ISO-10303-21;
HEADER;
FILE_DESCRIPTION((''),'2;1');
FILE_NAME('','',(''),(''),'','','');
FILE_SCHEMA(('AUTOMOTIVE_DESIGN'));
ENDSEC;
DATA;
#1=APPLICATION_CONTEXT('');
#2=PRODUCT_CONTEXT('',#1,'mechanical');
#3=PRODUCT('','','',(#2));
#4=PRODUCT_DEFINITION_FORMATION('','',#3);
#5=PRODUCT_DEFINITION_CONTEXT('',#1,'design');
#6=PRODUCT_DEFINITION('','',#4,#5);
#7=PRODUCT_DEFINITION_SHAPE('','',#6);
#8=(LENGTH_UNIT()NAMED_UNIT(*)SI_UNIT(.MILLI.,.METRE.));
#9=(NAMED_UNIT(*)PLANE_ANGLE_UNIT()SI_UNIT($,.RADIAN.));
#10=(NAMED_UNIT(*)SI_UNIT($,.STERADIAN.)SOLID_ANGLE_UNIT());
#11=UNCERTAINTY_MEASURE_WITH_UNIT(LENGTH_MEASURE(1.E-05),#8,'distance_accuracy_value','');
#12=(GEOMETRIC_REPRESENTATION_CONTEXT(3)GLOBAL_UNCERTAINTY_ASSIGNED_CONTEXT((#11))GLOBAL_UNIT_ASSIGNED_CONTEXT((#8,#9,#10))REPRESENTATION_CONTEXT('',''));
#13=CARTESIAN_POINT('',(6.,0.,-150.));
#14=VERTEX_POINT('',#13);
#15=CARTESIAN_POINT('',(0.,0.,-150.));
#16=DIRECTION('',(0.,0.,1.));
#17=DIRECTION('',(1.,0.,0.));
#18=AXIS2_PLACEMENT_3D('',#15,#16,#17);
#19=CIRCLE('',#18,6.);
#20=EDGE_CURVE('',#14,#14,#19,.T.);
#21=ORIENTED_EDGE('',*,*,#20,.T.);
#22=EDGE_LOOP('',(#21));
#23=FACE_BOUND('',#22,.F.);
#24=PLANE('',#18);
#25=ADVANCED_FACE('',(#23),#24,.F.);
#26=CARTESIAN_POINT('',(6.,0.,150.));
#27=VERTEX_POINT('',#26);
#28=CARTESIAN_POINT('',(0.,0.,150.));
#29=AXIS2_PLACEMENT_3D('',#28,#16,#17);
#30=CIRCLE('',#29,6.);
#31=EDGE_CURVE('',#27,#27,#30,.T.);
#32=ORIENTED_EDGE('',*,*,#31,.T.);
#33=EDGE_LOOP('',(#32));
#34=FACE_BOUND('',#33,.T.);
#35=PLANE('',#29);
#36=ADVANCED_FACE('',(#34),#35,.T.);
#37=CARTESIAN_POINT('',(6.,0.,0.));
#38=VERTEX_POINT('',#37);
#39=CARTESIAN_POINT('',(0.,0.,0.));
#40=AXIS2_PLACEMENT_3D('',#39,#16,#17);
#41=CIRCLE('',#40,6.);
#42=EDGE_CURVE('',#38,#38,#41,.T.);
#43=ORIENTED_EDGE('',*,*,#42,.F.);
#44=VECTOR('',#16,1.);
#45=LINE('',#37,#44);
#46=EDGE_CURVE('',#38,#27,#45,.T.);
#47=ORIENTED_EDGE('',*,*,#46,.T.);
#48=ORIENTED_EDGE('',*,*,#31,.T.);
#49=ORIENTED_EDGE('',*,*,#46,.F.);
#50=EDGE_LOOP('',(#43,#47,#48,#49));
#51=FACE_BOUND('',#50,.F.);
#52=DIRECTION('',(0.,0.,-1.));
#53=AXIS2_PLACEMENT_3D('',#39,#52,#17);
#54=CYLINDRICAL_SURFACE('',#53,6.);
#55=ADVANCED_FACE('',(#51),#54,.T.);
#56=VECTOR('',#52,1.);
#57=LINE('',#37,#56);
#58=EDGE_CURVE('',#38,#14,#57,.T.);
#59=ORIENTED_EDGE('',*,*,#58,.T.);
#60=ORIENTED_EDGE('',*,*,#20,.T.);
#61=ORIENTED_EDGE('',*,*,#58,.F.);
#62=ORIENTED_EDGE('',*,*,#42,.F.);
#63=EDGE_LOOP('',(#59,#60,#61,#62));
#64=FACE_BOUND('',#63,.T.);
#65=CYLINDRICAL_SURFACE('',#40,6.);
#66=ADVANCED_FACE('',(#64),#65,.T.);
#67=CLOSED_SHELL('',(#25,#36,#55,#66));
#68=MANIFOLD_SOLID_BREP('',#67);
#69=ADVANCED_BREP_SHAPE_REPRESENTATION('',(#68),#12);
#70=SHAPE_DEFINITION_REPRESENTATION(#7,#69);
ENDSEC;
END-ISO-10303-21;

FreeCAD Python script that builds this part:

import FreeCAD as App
import Part
import Sketcher
from FreeCAD import Vector

doc = App.newDocument("Part")
params = doc.addObject("Spreadsheet::Sheet", "Params")
for row, (alias, value) in enumerate([
    ("sketch1_diameter", "12 mm"),
    ("pad1_length", "300 mm"),
], start=1):
    params.set(f"A{row}", alias)
    params.set(f"B{row}", "=" + value)
    params.setAlias(f"B{row}", alias)

body = doc.addObject("PartDesign::Body", "Body")

# Sketch on XY plane
sketch1 = body.newObject("Sketcher::SketchObject", "Sketch")
sketch1.AttachmentSupport = (doc.getObject("XY_Plane"), [""])
sketch1.MapMode = "FlatFace"
sketch1.addGeometry(Part.Circle(Vector(0, 0, 0), Vector(0, 0, 1), 6), False)
sketch1.addConstraint(Sketcher.Constraint("Coincident", 0, 3, -1, 1))
sketch1.addConstraint(Sketcher.Constraint("Diameter", 0, 12.0))
sketch1.setExpression("Constraints[1]", "Params.sketch1_diameter")
pad1 = body.newObject("PartDesign::Pad", "Pad")
pad1.Profile = sketch1
pad1.setExpression("Length", "Params.pad1_length")
pad1.Midplane = True

doc.recompute()
